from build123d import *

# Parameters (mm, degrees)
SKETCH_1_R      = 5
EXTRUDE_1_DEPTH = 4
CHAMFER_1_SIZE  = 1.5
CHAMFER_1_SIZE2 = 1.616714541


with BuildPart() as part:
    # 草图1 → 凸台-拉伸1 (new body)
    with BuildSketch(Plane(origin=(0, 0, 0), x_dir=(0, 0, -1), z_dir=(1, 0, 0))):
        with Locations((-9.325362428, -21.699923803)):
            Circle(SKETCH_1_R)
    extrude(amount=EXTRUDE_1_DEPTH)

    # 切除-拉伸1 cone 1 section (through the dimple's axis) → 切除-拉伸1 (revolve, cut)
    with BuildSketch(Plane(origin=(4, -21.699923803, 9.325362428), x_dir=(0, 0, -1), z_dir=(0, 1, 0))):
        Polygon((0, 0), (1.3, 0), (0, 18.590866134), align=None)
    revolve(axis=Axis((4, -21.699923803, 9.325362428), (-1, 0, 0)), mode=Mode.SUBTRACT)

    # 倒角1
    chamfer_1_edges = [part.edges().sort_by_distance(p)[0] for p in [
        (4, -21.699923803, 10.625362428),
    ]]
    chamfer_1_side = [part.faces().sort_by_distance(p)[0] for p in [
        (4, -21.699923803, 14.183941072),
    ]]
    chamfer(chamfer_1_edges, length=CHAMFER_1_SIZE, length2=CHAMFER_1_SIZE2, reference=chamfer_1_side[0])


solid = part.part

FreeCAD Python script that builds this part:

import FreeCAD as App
import Part
import Sketcher
Q = App.Units.Quantity


def edges_at(feature, points):
    """Names of the edges that pass closest to the given points."""
    edges = feature.Shape.Edges
    near = lambda p: min(range(len(edges)), key=lambda i: edges[i].distToShape(Part.Vertex(*p))[0])
    return sorted({f"Edge{near(p) + 1}" for p in points})

doc = App.newDocument("Part")
body = doc.addObject("PartDesign::Body", "Body")

# Sketch on YZ plane
sketch1 = doc.addObject("Sketcher::SketchObject", "Sketch")
body.addObject(sketch1)
sketch1.AttachmentSupport = (doc.YZ_Plane, [""])
sketch1.MapMode = "FlatFace"
sketch1.addGeometry(Part.Circle(App.Vector(-21.699924, 9.325362, 0), App.Vector(0, 0, 1), 5), False)
sketch1.addConstraint([
    Sketcher.Constraint("Diameter", 0, Q("10 mm")),
    Sketcher.Constraint("DistanceX", 0, 3, -1, 1, Q("21.699924 mm")),
    Sketcher.Constraint("DistanceY", -1, 1, 0, 3, Q("9.325362 mm")),
])
pad1 = doc.addObject("PartDesign::Pad", "Pad")
body.addObject(pad1)
pad1.Profile = sketch1
pad1.Length = 4

# Sketch on XZ plane
sketch2 = doc.addObject("Sketcher::SketchObject", "Sketch001")
body.addObject(sketch2)
sketch2.AttachmentSupport = (doc.XZ_Plane, [""])
sketch2.MapMode = "FlatFace"
sketch2.AttachmentOffset = App.Placement(App.Vector(0, 0, 21.699924), App.Rotation())
sketch2.addGeometry([
    Part.LineSegment(App.Vector(4, 9.325362, 0), App.Vector(4, 8.025362, 0)),
    Part.LineSegment(App.Vector(4, 8.025362, 0), App.Vector(-14.590866, 9.325362, 0)),
    Part.LineSegment(App.Vector(-14.590866, 9.325362, 0), App.Vector(4, 9.325362, 0)),
], False)
sketch2.addGeometry(Part.LineSegment(App.Vector(4, 9.325362, 0), App.Vector(-14.590866, 9.325362, 0)), True)  # axis
sketch2.addConstraint([
    Sketcher.Constraint("Coincident", 0, 2, 1, 1),
    Sketcher.Constraint("Coincident", 1, 2, 2, 1),
    Sketcher.Constraint("Coincident", 2, 2, 0, 1),
    Sketcher.Constraint("Vertical", 0),
    Sketcher.Constraint("Horizontal", 2),
    Sketcher.Constraint("Horizontal", 3),
    Sketcher.Constraint("Coincident", 3, 1, 2, 2),
    Sketcher.Constraint("Equal", 2, 3),
    Sketcher.Constraint("Angle", 1, Q("176 deg")),
    Sketcher.Constraint("DistanceY", 0, 2, 0, 1, Q("1.3 mm")),
    Sketcher.Constraint("DistanceX", -1, 1, 0, 2, Q("4 mm")),
    Sketcher.Constraint("DistanceY", -1, 1, 0, 2, Q("8.025362 mm")),
])
groove = doc.addObject("PartDesign::Groove", "Groove")
body.addObject(groove)
groove.Profile = sketch2
groove.ReferenceAxis = (sketch2, ["Axis0"])
groove.Angle = 360
doc.recompute()

chamfer = doc.addObject("PartDesign::Chamfer", "Chamfer")
body.addObject(chamfer)
chamfer.Base = (groove, edges_at(groove, [(4, -21.7, 10.625)]))
chamfer.ChamferType = "Two distances"
chamfer.Size = 1.5
chamfer.Size2 = 1.616715

doc.recompute()
